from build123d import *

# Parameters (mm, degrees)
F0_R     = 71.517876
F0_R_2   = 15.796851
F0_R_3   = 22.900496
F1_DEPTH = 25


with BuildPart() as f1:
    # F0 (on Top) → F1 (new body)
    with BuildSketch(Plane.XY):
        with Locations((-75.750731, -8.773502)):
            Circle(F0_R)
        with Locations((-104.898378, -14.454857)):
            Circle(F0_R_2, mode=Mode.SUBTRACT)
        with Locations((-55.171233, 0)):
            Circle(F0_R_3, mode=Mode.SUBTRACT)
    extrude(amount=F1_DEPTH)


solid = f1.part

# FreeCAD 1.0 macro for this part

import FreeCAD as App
import Part
import Sketcher
from FreeCAD import Vector
Q = App.Units.Quantity

doc = App.newDocument("Part")
body = doc.addObject("PartDesign::Body", "Body")

# Sketch on XY plane
sketch1 = body.newObject("Sketcher::SketchObject", "Sketch")
sketch1.AttachmentSupport = (doc.getObject("XY_Plane"), [""])
sketch1.MapMode = "FlatFace"
sketch1.addGeometry(Part.Circle(Vector(-76, -9, 0), Vector(0, 0, 1), 72), False)
sketch1.addGeometry(Part.Circle(Vector(-105, -14, 0), Vector(0, 0, 1), 16), False)
sketch1.addGeometry(Part.Circle(Vector(-55, 0, 0), Vector(0, 0, 1), 23), False)
sketch1.addConstraint(Sketcher.Constraint("PointOnObject", 2, 3, -1))
sketch1.addConstraint(Sketcher.Constraint("Diameter", 0, Q("143.035752 mm")))
sketch1.addConstraint(Sketcher.Constraint("Diameter", 1, Q("31.593702 mm")))
sketch1.addConstraint(Sketcher.Constraint("Diameter", 2, Q("45.800992 mm")))
sketch1.addConstraint(Sketcher.Constraint("DistanceX", 0, 3, 2, 3, Q("20.579498 mm")))
sketch1.addConstraint(Sketcher.Constraint("DistanceX", 0, 3, -1, 1, Q("75.750731 mm")))
sketch1.addConstraint(Sketcher.Constraint("DistanceY", 0, 3, -1, 1, Q("8.773502 mm")))
sketch1.addConstraint(Sketcher.Constraint("DistanceX", 1, 3, -1, 1, Q("104.898378 mm")))
sketch1.addConstraint(Sketcher.Constraint("DistanceY", 1, 3, -1, 1, Q("14.454857 mm")))
pad1 = body.newObject("PartDesign::Pad", "Pad")
pad1.Profile = sketch1
pad1.Length = 25

doc.recompute()
